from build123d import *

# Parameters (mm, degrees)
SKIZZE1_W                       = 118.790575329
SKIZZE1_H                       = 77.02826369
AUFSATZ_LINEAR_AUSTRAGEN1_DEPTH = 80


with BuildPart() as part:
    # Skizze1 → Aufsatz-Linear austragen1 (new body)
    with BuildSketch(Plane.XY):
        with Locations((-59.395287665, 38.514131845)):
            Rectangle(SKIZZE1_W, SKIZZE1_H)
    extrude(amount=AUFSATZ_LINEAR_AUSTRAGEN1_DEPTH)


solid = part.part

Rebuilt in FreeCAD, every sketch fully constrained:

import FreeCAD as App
import Part
import Sketcher

doc = App.newDocument("Part")
body = doc.addObject("PartDesign::Body", "Body")

# Sketch on XY plane
sketch1 = body.newObject("Sketcher::SketchObject", "Sketch")
sketch1.AttachmentSupport = (doc.getObject("XY_Plane"), [""])
sketch1.MapMode = "FlatFace"
sketch1.addGeometry(Part.LineSegment(App.Vector(-118.790575, 77.028264, 0), App.Vector(-118.790575, 0, 0)), False)
sketch1.addGeometry(Part.LineSegment(App.Vector(-118.790575, 0, 0), App.Vector(0, 0, 0)), False)
sketch1.addGeometry(Part.LineSegment(App.Vector(0, 0, 0), App.Vector(0, 77.028264, 0)), False)
sketch1.addGeometry(Part.LineSegment(App.Vector(0, 77.028264, 0), App.Vector(-118.790575, 77.028264, 0)), False)
sketch1.addConstraint(Sketcher.Constraint("Coincident", 0, 2, 1, 1))
sketch1.addConstraint(Sketcher.Constraint("Coincident", 1, 2, 2, 1))
sketch1.addConstraint(Sketcher.Constraint("Coincident", 2, 2, 3, 1))
sketch1.addConstraint(Sketcher.Constraint("Coincident", 3, 2, 0, 1))
sketch1.addConstraint(Sketcher.Constraint("Vertical", 0))
sketch1.addConstraint(Sketcher.Constraint("Horizontal", 1))
sketch1.addConstraint(Sketcher.Constraint("Vertical", 2))
sketch1.addConstraint(Sketcher.Constraint("Horizontal", 3))
sketch1.addConstraint(Sketcher.Constraint("Coincident", 1, 2, -1, 1))
sketch1.addConstraint(Sketcher.Constraint("DistanceX", 1, 1, 1, 2, 118.790575))
sketch1.addConstraint(Sketcher.Constraint("DistanceY", 0, 2, 0, 1, 77.028264))
pad1 = body.newObject("PartDesign::Pad", "Pad")
pad1.Profile = sketch1
pad1.Length = 80

doc.recompute()
